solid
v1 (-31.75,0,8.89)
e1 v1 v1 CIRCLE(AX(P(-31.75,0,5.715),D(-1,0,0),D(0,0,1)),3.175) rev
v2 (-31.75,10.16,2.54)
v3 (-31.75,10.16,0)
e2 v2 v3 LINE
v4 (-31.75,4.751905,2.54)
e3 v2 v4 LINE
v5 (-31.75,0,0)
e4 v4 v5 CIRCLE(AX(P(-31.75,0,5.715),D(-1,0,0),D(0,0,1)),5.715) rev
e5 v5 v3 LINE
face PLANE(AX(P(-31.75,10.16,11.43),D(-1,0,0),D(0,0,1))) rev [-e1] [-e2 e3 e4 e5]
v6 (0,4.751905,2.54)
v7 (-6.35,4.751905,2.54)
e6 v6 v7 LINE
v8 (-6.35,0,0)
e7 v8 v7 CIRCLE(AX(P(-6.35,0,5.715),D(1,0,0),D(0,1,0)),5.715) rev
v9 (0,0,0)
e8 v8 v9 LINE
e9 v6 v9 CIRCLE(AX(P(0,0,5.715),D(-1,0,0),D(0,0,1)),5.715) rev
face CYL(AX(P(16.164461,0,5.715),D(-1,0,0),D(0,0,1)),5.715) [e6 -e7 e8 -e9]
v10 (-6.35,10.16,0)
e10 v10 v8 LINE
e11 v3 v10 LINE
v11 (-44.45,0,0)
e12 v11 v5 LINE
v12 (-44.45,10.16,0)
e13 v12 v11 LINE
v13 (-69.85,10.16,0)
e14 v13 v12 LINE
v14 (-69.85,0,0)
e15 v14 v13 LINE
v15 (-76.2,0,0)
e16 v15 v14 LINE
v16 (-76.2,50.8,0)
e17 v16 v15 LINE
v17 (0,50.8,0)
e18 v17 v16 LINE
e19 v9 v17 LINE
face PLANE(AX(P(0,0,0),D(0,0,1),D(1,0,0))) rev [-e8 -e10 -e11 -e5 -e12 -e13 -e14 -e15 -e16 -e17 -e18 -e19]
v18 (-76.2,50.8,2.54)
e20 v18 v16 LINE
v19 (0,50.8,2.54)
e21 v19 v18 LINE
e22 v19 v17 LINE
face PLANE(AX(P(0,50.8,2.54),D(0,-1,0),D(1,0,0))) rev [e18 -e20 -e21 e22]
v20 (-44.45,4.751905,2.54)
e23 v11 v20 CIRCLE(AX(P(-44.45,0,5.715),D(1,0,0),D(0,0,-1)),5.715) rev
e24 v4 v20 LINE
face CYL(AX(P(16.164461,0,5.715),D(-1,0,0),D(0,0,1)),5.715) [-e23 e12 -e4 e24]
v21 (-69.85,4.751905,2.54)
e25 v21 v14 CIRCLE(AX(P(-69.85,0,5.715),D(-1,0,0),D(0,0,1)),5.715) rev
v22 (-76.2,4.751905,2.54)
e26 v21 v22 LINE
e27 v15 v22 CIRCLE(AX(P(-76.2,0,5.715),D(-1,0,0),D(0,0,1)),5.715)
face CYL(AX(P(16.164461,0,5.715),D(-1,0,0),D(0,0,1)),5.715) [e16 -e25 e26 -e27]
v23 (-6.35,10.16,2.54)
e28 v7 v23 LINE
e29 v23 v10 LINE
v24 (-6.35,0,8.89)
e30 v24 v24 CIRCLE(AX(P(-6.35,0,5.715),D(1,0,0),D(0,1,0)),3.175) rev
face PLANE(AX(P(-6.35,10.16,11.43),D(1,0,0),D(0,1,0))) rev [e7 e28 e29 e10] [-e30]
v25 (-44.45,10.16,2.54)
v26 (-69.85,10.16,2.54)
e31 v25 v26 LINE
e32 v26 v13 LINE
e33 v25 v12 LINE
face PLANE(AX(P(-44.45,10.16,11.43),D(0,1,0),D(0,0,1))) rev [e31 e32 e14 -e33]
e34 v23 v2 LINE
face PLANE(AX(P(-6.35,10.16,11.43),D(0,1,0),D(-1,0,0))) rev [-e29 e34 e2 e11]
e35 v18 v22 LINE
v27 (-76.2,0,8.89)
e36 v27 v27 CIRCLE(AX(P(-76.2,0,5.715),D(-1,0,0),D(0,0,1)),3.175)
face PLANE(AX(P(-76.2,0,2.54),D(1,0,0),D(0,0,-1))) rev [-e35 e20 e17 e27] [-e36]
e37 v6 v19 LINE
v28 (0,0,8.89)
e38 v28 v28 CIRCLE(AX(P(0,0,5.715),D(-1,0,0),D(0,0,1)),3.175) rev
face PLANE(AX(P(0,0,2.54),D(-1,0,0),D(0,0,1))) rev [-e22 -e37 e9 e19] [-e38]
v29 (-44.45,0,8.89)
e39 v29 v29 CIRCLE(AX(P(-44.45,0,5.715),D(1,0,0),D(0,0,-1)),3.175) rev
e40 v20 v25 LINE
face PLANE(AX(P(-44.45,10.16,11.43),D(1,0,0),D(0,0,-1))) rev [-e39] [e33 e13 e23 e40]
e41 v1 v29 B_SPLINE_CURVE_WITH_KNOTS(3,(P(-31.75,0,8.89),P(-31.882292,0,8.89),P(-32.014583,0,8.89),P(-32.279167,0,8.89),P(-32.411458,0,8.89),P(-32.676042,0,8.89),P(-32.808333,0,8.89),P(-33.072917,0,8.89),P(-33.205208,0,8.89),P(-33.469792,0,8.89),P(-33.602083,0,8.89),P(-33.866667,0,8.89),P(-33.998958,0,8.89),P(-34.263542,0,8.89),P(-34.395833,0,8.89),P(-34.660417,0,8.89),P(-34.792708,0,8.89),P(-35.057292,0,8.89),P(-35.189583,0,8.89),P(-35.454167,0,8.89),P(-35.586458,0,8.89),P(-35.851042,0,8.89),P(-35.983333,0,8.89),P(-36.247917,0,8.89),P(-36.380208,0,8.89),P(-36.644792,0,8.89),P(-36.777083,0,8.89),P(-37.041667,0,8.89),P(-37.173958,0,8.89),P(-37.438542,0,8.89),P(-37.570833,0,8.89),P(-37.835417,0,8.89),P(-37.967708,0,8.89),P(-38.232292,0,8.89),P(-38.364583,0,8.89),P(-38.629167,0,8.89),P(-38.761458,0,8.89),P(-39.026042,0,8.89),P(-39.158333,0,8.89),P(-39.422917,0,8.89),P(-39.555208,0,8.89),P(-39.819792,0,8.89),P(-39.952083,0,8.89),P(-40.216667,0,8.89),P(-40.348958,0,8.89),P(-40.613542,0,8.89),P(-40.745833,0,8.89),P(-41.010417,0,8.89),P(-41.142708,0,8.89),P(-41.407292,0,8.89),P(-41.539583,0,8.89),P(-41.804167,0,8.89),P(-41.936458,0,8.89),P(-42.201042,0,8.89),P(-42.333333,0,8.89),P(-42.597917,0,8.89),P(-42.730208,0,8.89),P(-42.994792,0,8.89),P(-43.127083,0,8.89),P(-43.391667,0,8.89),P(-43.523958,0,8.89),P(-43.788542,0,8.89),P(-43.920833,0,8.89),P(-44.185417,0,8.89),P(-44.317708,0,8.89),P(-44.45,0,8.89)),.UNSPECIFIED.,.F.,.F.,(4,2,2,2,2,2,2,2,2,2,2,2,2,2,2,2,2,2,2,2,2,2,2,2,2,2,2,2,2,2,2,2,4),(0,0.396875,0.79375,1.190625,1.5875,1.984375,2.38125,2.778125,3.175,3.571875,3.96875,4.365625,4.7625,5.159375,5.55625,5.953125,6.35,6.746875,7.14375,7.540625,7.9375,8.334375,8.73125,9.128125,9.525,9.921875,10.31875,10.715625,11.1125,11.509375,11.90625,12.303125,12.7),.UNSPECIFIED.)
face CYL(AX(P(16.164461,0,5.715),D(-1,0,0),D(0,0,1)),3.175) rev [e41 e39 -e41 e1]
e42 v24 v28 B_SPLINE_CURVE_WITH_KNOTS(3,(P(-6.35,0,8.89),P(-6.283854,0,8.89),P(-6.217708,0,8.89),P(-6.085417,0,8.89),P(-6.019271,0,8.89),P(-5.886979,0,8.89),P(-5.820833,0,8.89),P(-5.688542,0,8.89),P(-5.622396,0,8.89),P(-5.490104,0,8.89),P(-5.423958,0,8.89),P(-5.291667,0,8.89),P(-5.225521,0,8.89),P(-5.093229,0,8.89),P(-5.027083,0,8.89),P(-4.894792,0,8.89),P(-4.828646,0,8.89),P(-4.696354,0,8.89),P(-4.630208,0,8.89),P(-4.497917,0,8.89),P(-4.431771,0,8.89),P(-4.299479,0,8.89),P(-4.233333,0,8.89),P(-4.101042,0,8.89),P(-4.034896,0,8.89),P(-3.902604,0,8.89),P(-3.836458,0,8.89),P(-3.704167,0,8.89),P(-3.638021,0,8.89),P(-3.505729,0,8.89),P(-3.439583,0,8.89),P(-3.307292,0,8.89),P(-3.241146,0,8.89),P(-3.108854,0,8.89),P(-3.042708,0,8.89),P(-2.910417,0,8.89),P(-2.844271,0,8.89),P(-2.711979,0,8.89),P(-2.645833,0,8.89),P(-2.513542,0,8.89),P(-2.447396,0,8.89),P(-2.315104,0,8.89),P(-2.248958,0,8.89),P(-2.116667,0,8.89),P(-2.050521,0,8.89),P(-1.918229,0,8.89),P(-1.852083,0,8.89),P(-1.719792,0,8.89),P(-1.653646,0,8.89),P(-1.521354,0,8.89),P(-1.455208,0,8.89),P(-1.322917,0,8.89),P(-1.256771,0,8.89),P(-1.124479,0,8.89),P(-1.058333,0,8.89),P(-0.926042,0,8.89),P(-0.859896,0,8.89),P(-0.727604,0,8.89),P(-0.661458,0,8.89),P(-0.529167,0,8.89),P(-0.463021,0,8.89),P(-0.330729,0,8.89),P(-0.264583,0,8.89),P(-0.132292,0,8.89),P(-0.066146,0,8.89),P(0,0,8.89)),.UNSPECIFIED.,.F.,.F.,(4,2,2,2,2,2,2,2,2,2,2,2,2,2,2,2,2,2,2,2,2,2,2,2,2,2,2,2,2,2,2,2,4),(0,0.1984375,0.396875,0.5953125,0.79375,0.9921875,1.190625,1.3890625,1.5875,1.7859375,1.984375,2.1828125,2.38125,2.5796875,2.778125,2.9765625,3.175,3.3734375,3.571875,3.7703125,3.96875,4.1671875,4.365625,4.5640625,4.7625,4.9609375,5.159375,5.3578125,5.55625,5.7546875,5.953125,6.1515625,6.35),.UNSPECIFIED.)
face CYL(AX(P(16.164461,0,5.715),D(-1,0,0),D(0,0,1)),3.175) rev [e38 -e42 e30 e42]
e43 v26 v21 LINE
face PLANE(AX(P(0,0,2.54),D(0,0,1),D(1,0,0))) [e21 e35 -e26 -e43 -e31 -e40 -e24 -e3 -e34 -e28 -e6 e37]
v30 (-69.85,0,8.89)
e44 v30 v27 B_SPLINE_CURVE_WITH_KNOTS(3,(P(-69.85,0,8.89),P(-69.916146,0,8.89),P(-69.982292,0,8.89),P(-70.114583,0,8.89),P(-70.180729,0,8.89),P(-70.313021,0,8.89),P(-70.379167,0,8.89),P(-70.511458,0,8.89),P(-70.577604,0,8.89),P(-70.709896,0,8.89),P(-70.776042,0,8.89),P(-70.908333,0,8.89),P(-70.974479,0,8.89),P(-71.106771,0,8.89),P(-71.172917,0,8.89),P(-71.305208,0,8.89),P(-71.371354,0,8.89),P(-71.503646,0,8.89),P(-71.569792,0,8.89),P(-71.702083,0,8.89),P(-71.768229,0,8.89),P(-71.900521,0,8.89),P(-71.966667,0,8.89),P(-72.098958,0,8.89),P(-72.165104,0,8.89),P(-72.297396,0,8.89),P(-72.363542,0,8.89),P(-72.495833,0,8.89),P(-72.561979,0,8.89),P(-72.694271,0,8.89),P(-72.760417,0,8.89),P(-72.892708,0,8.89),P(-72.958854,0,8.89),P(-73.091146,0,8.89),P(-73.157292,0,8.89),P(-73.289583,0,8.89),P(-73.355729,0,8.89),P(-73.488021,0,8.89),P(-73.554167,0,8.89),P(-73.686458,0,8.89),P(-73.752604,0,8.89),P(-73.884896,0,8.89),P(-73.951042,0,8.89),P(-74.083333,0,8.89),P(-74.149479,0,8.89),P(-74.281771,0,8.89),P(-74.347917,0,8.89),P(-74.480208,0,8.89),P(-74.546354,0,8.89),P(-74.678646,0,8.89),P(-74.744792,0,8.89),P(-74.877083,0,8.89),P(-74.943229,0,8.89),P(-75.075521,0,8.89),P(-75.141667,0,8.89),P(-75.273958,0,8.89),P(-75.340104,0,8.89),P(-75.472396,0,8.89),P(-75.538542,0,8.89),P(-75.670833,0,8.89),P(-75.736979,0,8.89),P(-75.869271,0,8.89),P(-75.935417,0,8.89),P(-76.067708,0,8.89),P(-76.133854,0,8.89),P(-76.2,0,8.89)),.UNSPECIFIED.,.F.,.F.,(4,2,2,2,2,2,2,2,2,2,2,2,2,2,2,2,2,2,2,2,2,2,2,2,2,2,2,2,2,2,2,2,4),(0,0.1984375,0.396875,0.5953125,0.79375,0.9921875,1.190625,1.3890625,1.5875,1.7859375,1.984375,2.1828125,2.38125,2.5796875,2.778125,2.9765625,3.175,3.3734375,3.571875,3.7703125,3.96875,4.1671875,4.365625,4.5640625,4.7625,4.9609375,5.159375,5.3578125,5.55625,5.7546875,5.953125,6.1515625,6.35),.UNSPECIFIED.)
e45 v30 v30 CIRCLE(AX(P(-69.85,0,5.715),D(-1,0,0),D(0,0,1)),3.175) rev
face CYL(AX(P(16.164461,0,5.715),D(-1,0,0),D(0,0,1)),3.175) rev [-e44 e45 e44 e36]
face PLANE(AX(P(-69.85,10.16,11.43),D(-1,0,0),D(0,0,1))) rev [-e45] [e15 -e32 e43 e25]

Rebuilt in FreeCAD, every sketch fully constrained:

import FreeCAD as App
import Part
import Sketcher
from FreeCAD import Vector
Q = App.Units.Quantity


def add_polygon(sketch, points):
    """Adds a closed chain of lines whose ends are joined by coincident constraints."""
    first, n = sketch.GeometryCount, len(points)
    for a, b in zip(points, points[1:] + points[:1]):
        sketch.addGeometry(Part.LineSegment(App.Vector(*a, 0), App.Vector(*b, 0)), False)
    for i in range(n):
        sketch.addConstraint(Sketcher.Constraint("Coincident", first + i, 2, first + (i + 1) % n, 1))

doc = App.newDocument("Part")
params = doc.addObject("Spreadsheet::Sheet", "Params")
for row, (alias, value) in enumerate([
    ("sketch1_width", "3 in"),
    ("sketch1_height", "2 in"),
    ("pad1_length", "0.1 in"),
    ("sketch2_diameter", "0.45 in"),
    ("sketch2_diameter2", "0.25 in"),
    ("pad2_length", "3 in"),
    ("sketch3_width", "1 in"),
], start=1):
    params.set(f"A{row}", alias)
    params.set(f"B{row}", "=" + value)
    params.setAlias(f"B{row}", alias)

body = doc.addObject("PartDesign::Body", "Body")

sketch1 = body.newObject("Sketcher::SketchObject", "Sketch")
sketch1.AttachmentSupport = (doc.getObject("XY_Plane"), [""])
sketch1.MapMode = "FlatFace"
add_polygon(sketch1, [(-76.2, 50.8), (-76.2, 0), (0, 0), (0, 50.8)])
sketch1.addConstraint([
    Sketcher.Constraint("Vertical", 0),
    Sketcher.Constraint("Horizontal", 1),
    Sketcher.Constraint("Vertical", 2),
    Sketcher.Constraint("Horizontal", 3),
    Sketcher.Constraint("Coincident", 1, 2, -1, 1),
    Sketcher.Constraint("DistanceX", 1, 1, 1, 2, Q("3 in")),
    Sketcher.Constraint("DistanceY", 0, 2, 0, 1, Q("2 in")),
])
sketch1.setExpression("Constraints[9]", "Params.sketch1_width")
sketch1.setExpression("Constraints[10]", "Params.sketch1_height")
pad1 = body.newObject("PartDesign::Pad", "Pad")
pad1.Profile = sketch1
pad1.setExpression("Length", "Params.pad1_length")

sketch2 = body.newObject("Sketcher::SketchObject", "Sketch001")
sketch2.AttachmentSupport = (doc.getObject("YZ_Plane"), [""])
sketch2.MapMode = "FlatFace"
sketch2.AttachmentOffset = App.Placement(Vector(0, 0, -3 * 25.4), App.Rotation())
sketch2.addGeometry([
    Part.Circle(Vector(0, 5.715, 0), Vector(0, 0, 1), 5.715),
    Part.Circle(Vector(0, 5.715, 0), Vector(0, 0, 1), 3.175),
], False)
sketch2.addConstraint([
    Sketcher.Constraint("Coincident", 1, 3, 0, 3),
    Sketcher.Constraint("PointOnObject", 0, 3, -2),
    Sketcher.Constraint("Diameter", 0, Q("0.45 in")),
    Sketcher.Constraint("Diameter", 1, Q("0.25 in")),
    Sketcher.Constraint("DistanceY", -1, 1, 0, 3, Q("0.225 in")),
])
sketch2.setExpression("Constraints[2]", "Params.sketch2_diameter")
sketch2.setExpression("Constraints[3]", "Params.sketch2_diameter2")
pad2 = body.newObject("PartDesign::Pad", "Pad001")
pad2.Profile = sketch2
pad2.setExpression("Length", "Params.pad2_length")

sketch3 = body.newObject("Sketcher::SketchObject", "Sketch002")
sketch3.AttachmentSupport = (doc.getObject("XY_Plane"), [""])
sketch3.MapMode = "FlatFace"
add_polygon(sketch3, [(-6.35, 10.16), (-6.35, -15.24), (-31.75, -15.24), (-31.75, 10.16)])
add_polygon(sketch3, [(-44.45, 10.16), (-44.45, -15.24), (-69.85, -15.24), (-69.85, 10.16)])
sketch3.addConstraint([
    Sketcher.Constraint("Vertical", 0),
    Sketcher.Constraint("Horizontal", 1),
    Sketcher.Constraint("Vertical", 2),
    Sketcher.Constraint("Horizontal", 3),
    Sketcher.Constraint("Vertical", 4),
    Sketcher.Constraint("Horizontal", 5),
    Sketcher.Constraint("Vertical", 6),
    Sketcher.Constraint("Horizontal", 7),
    Sketcher.Constraint("Horizontal", 1, 2, 4, 2),
    Sketcher.Constraint("Horizontal", 3, 2, 6, 2),
    Sketcher.Constraint("Equal", 3, 5),
    Sketcher.Constraint("Equal", 7, 0),
    Sketcher.Constraint("DistanceX", 1, 2, 1, 1, Q("1 in")),
    Sketcher.Constraint("DistanceY", 0, 2, -1, 1, Q("0.6 in")),
    Sketcher.Constraint("DistanceX", 4, 2, 1, 2, Q("0.5 in")),
    Sketcher.Constraint("DistanceX", 0, 2, -1, 1, Q("0.25 in")),
])
sketch3.setExpression("Constraints[20]", "Params.sketch3_width")
pocket1 = body.newObject("PartDesign::Pocket", "Pocket")
pocket1.Profile = sketch3
pocket1.Type = "ThroughAll"
pocket1.Reversed = True

doc.recompute()
